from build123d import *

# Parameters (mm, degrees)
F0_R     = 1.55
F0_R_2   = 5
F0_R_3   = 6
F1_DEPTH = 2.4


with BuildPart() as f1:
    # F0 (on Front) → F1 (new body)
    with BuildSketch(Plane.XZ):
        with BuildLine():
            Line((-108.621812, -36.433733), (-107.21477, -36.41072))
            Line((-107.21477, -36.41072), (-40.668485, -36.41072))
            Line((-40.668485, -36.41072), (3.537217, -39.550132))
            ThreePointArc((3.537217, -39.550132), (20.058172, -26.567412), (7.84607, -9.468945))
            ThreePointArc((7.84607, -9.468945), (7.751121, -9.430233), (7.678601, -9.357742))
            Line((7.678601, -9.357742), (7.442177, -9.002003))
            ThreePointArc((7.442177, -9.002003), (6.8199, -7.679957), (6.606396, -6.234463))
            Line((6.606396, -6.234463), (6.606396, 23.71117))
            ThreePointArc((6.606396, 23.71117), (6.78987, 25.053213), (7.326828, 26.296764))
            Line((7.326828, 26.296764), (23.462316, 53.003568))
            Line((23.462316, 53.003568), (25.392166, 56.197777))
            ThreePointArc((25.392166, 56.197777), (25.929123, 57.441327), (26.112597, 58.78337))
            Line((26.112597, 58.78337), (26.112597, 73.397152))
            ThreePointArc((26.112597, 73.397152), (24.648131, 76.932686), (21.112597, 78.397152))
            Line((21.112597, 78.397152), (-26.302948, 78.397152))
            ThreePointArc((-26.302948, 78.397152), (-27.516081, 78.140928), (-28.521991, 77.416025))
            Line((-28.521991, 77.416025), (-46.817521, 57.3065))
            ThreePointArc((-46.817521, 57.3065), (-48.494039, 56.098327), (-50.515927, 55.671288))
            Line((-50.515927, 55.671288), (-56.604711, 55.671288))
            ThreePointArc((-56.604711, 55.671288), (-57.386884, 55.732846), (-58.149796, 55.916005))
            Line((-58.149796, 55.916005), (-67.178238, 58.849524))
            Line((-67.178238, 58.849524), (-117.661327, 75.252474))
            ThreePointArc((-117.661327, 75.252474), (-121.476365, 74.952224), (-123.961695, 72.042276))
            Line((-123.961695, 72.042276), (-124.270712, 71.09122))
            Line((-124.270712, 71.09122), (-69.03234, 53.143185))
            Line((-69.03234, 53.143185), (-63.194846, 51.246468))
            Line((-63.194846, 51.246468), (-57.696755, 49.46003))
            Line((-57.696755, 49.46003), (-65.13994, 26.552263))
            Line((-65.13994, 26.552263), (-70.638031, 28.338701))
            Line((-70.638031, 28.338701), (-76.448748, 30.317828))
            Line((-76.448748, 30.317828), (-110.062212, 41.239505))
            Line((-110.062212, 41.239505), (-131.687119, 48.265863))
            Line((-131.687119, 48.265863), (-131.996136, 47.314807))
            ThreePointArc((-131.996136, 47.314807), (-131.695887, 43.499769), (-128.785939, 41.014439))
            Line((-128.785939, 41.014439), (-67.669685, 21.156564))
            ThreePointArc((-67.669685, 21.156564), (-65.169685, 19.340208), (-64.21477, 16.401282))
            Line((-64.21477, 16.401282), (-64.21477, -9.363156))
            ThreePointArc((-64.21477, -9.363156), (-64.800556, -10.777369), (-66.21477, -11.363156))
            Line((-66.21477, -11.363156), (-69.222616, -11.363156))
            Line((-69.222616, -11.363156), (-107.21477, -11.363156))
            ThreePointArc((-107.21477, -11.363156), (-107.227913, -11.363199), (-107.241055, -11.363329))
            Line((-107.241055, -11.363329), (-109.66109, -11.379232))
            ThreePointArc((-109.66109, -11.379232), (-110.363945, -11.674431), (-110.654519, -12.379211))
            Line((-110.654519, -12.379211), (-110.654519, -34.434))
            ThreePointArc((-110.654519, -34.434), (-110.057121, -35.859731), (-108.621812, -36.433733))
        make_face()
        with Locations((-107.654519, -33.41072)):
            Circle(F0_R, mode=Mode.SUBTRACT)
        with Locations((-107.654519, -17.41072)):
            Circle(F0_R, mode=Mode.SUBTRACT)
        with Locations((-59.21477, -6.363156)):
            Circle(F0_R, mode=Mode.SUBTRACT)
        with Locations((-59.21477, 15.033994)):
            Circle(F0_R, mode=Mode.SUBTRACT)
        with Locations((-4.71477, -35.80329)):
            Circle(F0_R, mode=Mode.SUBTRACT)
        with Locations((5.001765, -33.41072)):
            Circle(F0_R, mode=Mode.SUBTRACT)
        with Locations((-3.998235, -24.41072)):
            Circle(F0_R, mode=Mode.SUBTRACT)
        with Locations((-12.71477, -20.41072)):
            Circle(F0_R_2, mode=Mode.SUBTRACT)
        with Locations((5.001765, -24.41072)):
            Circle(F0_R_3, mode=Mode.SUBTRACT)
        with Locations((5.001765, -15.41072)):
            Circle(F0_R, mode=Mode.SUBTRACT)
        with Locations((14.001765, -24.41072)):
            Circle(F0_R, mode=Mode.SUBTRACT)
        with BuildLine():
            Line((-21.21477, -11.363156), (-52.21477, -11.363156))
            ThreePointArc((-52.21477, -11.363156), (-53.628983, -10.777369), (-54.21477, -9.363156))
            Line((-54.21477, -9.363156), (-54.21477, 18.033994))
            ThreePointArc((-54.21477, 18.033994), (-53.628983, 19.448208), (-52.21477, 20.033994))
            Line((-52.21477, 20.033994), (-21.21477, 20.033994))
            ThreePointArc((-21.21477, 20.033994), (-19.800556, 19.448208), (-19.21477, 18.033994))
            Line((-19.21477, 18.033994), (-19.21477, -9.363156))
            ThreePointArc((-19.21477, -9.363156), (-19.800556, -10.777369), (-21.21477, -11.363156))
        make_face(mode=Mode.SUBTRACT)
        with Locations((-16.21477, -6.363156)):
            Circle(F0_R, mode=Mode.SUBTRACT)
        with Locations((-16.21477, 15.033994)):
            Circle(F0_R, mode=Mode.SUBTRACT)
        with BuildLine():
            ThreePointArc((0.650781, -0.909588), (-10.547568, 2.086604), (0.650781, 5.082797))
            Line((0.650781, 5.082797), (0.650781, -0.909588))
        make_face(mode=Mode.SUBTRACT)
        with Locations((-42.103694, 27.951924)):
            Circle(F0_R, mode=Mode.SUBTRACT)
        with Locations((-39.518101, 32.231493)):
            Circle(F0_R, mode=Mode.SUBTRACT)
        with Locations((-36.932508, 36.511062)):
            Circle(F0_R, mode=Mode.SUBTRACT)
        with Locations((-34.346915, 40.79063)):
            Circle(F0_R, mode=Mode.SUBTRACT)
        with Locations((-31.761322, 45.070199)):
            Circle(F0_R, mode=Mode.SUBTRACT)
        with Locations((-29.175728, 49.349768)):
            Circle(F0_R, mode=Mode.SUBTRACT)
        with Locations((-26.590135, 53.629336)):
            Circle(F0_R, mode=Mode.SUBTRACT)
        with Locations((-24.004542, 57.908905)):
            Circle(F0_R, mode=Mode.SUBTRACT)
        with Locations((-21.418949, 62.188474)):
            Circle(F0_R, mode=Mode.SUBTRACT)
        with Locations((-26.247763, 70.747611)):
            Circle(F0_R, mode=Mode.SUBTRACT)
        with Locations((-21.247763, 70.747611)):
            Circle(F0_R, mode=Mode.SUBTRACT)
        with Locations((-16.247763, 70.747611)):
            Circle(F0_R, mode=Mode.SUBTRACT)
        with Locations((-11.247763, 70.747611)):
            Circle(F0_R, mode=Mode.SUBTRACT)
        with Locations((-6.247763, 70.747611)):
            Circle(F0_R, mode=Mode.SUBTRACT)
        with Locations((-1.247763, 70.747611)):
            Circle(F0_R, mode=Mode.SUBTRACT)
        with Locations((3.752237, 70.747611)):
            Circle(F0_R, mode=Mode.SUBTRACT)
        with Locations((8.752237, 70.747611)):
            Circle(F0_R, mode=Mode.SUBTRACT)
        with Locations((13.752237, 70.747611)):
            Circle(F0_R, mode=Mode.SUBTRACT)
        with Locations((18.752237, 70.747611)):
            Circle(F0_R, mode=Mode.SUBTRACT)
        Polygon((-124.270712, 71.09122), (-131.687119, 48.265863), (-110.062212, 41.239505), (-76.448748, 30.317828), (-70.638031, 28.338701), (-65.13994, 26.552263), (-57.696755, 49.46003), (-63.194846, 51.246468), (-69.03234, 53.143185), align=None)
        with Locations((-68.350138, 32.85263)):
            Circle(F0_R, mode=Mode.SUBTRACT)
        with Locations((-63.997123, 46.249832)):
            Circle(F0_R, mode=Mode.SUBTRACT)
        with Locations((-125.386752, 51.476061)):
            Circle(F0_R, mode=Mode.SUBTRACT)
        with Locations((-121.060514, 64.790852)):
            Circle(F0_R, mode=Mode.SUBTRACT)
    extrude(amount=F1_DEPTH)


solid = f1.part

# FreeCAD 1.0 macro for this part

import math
import FreeCAD as App
import Part
import Sketcher

doc = App.newDocument("Part")
body = doc.addObject("PartDesign::Body", "Body")

# Sketch on XZ plane
sketch1 = body.newObject("Sketcher::SketchObject", "Sketch")
sketch1.AttachmentSupport = (doc.getObject("XZ_Plane"), [""])
sketch1.MapMode = "FlatFace"
sketch1.addGeometry([
    Part.LineSegment(App.Vector(-108.621812, -36.433733, 0), App.Vector(-107.21477, -36.41072, 0)),  # 0
    Part.LineSegment(App.Vector(-107.21477, -36.41072, 0), App.Vector(-40.668485, -36.41072, 0)),  # 1
    Part.LineSegment(App.Vector(-40.668485, -36.41072, 0), App.Vector(3.537217, -39.550132, 0)),  # 2
    Part.ArcOfCircle(Part.Circle(App.Vector(5.001765, -24.41072, 0), App.Vector(0, 0, 1), 15.210086), math.radians(-95.525455), math.radians(79.222169)),  # 3
    Part.ArcOfCircle(Part.Circle(App.Vector(7.89456, -9.214217, 0), App.Vector(0, 0, 1), 0.259303), math.radians(-146.392162), math.radians(-100.777861)),  # 4
    Part.LineSegment(App.Vector(7.678601, -9.357742, 0), App.Vector(7.442177, -9.002003, 0)),  # 5
    Part.ArcOfCircle(Part.Circle(App.Vector(11.6064, -6.234461, 0), App.Vector(0, 0, 1), 5.000004), math.radians(-179.999981), math.radians(-146.391997)),  # 6
    Part.LineSegment(App.Vector(6.606396, -6.234463, 0), App.Vector(6.606396, 23.71117, 0)),  # 7
    Part.ArcOfCircle(Part.Circle(App.Vector(11.606389, 23.711172, 0), App.Vector(0, 0, 1), 4.999993), math.radians(148.860789), math.radians(180.000021)),  # 8
    Part.LineSegment(App.Vector(7.326828, 26.296764, 0), App.Vector(23.462316, 53.003568, 0)),  # 9
    Part.LineSegment(App.Vector(23.462316, 53.003568, 0), App.Vector(25.392166, 56.197777, 0)),  # 10
    Part.ArcOfCircle(Part.Circle(App.Vector(21.1126, 58.783369, 0), App.Vector(0, 0, 1), 4.999997), math.radians(-31.139175), math.radians(0.000014)),  # 11
    Part.LineSegment(App.Vector(26.112597, 58.78337, 0), App.Vector(26.112597, 73.397152, 0)),  # 12
    Part.ArcOfCircle(Part.Circle(App.Vector(21.112597, 73.397152, 0), App.Vector(0, 0, 1), 5), math.radians(-0.000004), math.radians(90.000004)),  # 13
    Part.LineSegment(App.Vector(21.112597, 78.397152, 0), App.Vector(-26.302948, 78.397152, 0)),  # 14
    Part.ArcOfCircle(Part.Circle(App.Vector(-26.302947, 75.397149, 0), App.Vector(0, 0, 1), 3.000003), math.radians(90.000024), math.radians(137.704224)),  # 15
    Part.LineSegment(App.Vector(-28.521991, 77.416025, 0), App.Vector(-46.817521, 57.3065, 0)),  # 16
    Part.ArcOfCircle(Part.Circle(App.Vector(-50.515926, 60.671287, 0), App.Vector(0, 0, 1), 4.999999), math.radians(-90.000011), math.radians(-42.295743)),  # 17
    Part.LineSegment(App.Vector(-50.515927, 55.671288, 0), App.Vector(-56.604711, 55.671288, 0)),  # 18
    Part.ArcOfCircle(Part.Circle(App.Vector(-56.604715, 60.671273, 0), App.Vector(0, 0, 1), 4.999985), math.radians(-108.000013), math.radians(-89.999957)),  # 19
    Part.LineSegment(App.Vector(-58.149796, 55.916005, 0), App.Vector(-67.178238, 58.849524, 0)),  # 20
    Part.LineSegment(App.Vector(-67.178238, 58.849524, 0), App.Vector(-117.661327, 75.252474, 0)),  # 21
    Part.ArcOfCircle(Part.Circle(App.Vector(-119.206412, 70.497191, 0), App.Vector(0, 0, 1), 5), math.radians(71.999997), math.radians(162.000006)),  # 22
    Part.LineSegment(App.Vector(-123.961695, 72.042276, 0), App.Vector(-124.270712, 71.09122, 0)),  # 23
    Part.LineSegment(App.Vector(-124.270712, 71.09122, 0), App.Vector(-131.687119, 48.265863, 0)),  # 24
    Part.LineSegment(App.Vector(-131.687119, 48.265863, 0), App.Vector(-131.996136, 47.314807, 0)),  # 25
    Part.ArcOfCircle(Part.Circle(App.Vector(-127.240856, 45.76972, 0), App.Vector(0, 0, 1), 4.999998), math.radians(161.999975), math.radians(252.000013)),  # 26
    Part.LineSegment(App.Vector(-128.785939, 41.014439, 0), App.Vector(-67.669685, 21.156564, 0)),  # 27
    Part.ArcOfCircle(Part.Circle(App.Vector(-69.214769, 16.401282, 0), App.Vector(0, 0, 1), 4.999999), math.radians(-0.000001), math.radians(72.000007)),  # 28
    Part.LineSegment(App.Vector(-64.21477, 16.401282, 0), App.Vector(-64.21477, -9.363156, 0)),  # 29
    Part.ArcOfCircle(Part.Circle(App.Vector(-66.21477, -9.363156, 0), App.Vector(0, 0, 1), 2), math.radians(-89.999994), math.radians(-0.000006)),  # 30
    Part.LineSegment(App.Vector(-66.21477, -11.363156, 0), App.Vector(-107.21477, -11.363156, 0)),  # 31
    Part.ArcOfCircle(Part.Circle(App.Vector(-107.214846, -13.348505, 0), App.Vector(0, 0, 1), 1.985349), math.radians(89.997804), math.radians(90.756393)),  # 32
    Part.LineSegment(App.Vector(-107.241055, -11.363329, 0), App.Vector(-109.66109, -11.379232, 0)),  # 33
    Part.ArcOfCircle(Part.Circle(App.Vector(-109.654518, -12.379211, 0), App.Vector(0, 0, 1), 1.000001), math.radians(90.376544), math.radians(179.999983)),  # 34
    Part.LineSegment(App.Vector(-110.654519, -12.379211, 0), App.Vector(-110.654519, -34.434, 0)),  # 35
    Part.ArcOfCircle(Part.Circle(App.Vector(-108.654519, -34.434, 0), App.Vector(0, 0, 1), 2), math.radians(179.999988), math.radians(270.937028)),  # 36
    Part.Circle(App.Vector(-107.654519, -33.41072, 0), App.Vector(0, 0, 1), 1.55),  # 37
    Part.Circle(App.Vector(-107.654519, -17.41072, 0), App.Vector(0, 0, 1), 1.55),  # 38
    Part.Circle(App.Vector(-59.21477, -6.363156, 0), App.Vector(0, 0, 1), 1.55),  # 39
    Part.Circle(App.Vector(-59.21477, 15.033994, 0), App.Vector(0, 0, 1), 1.55),  # 40
    Part.Circle(App.Vector(-4.71477, -35.80329, 0), App.Vector(0, 0, 1), 1.55),  # 41
    Part.Circle(App.Vector(-3.998235, -24.41072, 0), App.Vector(0, 0, 1), 1.55),  # 42
    Part.Circle(App.Vector(5.001765, -33.41072, 0), App.Vector(0, 0, 1), 1.55),  # 43
    Part.Circle(App.Vector(5.001765, -24.41072, 0), App.Vector(0, 0, 1), 6),  # 44
    Part.Circle(App.Vector(14.001765, -24.41072, 0), App.Vector(0, 0, 1), 1.55),  # 45
    Part.Circle(App.Vector(-12.71477, -20.41072, 0), App.Vector(0, 0, 1), 5),  # 46
    Part.Circle(App.Vector(5.001765, -15.41072, 0), App.Vector(0, 0, 1), 1.55),  # 47
    Part.ArcOfCircle(Part.Circle(App.Vector(-21.21477, -9.363156, 0), App.Vector(0, 0, 1), 2), math.radians(-89.999994), math.radians(-0.000006)),  # 48
    Part.LineSegment(App.Vector(-21.21477, -11.363156, 0), App.Vector(-52.21477, -11.363156, 0)),  # 49
    Part.ArcOfCircle(Part.Circle(App.Vector(-52.214768, -9.363154, 0), App.Vector(0, 0, 1), 2.000002), math.radians(-179.999945), math.radians(-90.000055)),  # 50
    Part.LineSegment(App.Vector(-54.21477, -9.363156, 0), App.Vector(-54.21477, 18.033994, 0)),  # 51
    Part.ArcOfCircle(Part.Circle(App.Vector(-52.21477, 18.033994, 0), App.Vector(0, 0, 1), 2), math.radians(90.000006), math.radians(179.999994)),  # 52
    Part.LineSegment(App.Vector(-52.21477, 20.033994, 0), App.Vector(-21.21477, 20.033994, 0)),  # 53
    Part.ArcOfCircle(Part.Circle(App.Vector(-21.214769, 18.033995, 0), App.Vector(0, 0, 1), 1.999999), math.radians(-0.000043), math.radians(90.000043)),  # 54
    Part.LineSegment(App.Vector(-19.21477, 18.033994, 0), App.Vector(-19.21477, -9.363156, 0)),  # 55
    Part.Circle(App.Vector(-16.21477, -6.363156, 0), App.Vector(0, 0, 1), 1.55),  # 56
    Part.LineSegment(App.Vector(0.650781, 5.082797, 0), App.Vector(0.650781, -0.909588, 0)),  # 57
    Part.ArcOfCircle(Part.Circle(App.Vector(-4.547568, 2.086604, 0), App.Vector(0, 0, 1), 6), math.radians(29.958025), math.radians(330.041975)),  # 58
    Part.Circle(App.Vector(-16.21477, 15.033994, 0), App.Vector(0, 0, 1), 1.55),  # 59
    Part.Circle(App.Vector(-68.350138, 32.85263, 0), App.Vector(0, 0, 1), 1.55),  # 60
    Part.Circle(App.Vector(-125.386752, 51.476061, 0), App.Vector(0, 0, 1), 1.55),  # 61
    Part.Circle(App.Vector(-121.060514, 64.790852, 0), App.Vector(0, 0, 1), 1.55),  # 62
    Part.Circle(App.Vector(-63.997123, 46.249832, 0), App.Vector(0, 0, 1), 1.55),  # 63
    Part.Circle(App.Vector(-42.103694, 27.951924, 0), App.Vector(0, 0, 1), 1.55),  # 64
    Part.Circle(App.Vector(-39.518101, 32.231493, 0), App.Vector(0, 0, 1), 1.55),  # 65
    Part.Circle(App.Vector(-36.932508, 36.511062, 0), App.Vector(0, 0, 1), 1.55),  # 66
    Part.Circle(App.Vector(-34.346915, 40.79063, 0), App.Vector(0, 0, 1), 1.55),  # 67
    Part.Circle(App.Vector(-31.761322, 45.070199, 0), App.Vector(0, 0, 1), 1.55),  # 68
    Part.Circle(App.Vector(-29.175728, 49.349768, 0), App.Vector(0, 0, 1), 1.55),  # 69
    Part.Circle(App.Vector(-26.590135, 53.629336, 0), App.Vector(0, 0, 1), 1.55),  # 70
    Part.Circle(App.Vector(-24.004542, 57.908905, 0), App.Vector(0, 0, 1), 1.55),  # 71
    Part.Circle(App.Vector(-21.418949, 62.188474, 0), App.Vector(0, 0, 1), 1.55),  # 72
    Part.Circle(App.Vector(-26.247763, 70.747611, 0), App.Vector(0, 0, 1), 1.55),  # 73
    Part.Circle(App.Vector(-21.247763, 70.747611, 0), App.Vector(0, 0, 1), 1.55),  # 74
    Part.Circle(App.Vector(-16.247763, 70.747611, 0), App.Vector(0, 0, 1), 1.55),  # 75
    Part.Circle(App.Vector(-11.247763, 70.747611, 0), App.Vector(0, 0, 1), 1.55),  # 76
    Part.Circle(App.Vector(-6.247763, 70.747611, 0), App.Vector(0, 0, 1), 1.55),  # 77
    Part.Circle(App.Vector(-1.247763, 70.747611, 0), App.Vector(0, 0, 1), 1.55),  # 78
    Part.Circle(App.Vector(3.752237, 70.747611, 0), App.Vector(0, 0, 1), 1.55),  # 79
    Part.Circle(App.Vector(8.752237, 70.747611, 0), App.Vector(0, 0, 1), 1.55),  # 80
    Part.Circle(App.Vector(13.752237, 70.747611, 0), App.Vector(0, 0, 1), 1.55),  # 81
    Part.Circle(App.Vector(18.752237, 70.747611, 0), App.Vector(0, 0, 1), 1.55),  # 82
], False)
sketch1.addConstraint([
    Sketcher.Constraint("Coincident", 0, 2, 1, 1),
    Sketcher.Constraint("Coincident", 1, 2, 2, 1),
    Sketcher.Constraint("Coincident", 2, 2, 3, 1),
    Sketcher.Constraint("Coincident", 3, 2, 4, 2),
    Sketcher.Constraint("Coincident", 4, 1, 5, 1),
    Sketcher.Constraint("Coincident", 5, 2, 6, 2),
    Sketcher.Constraint("Coincident", 6, 1, 7, 1),
    Sketcher.Constraint("Coincident", 7, 2, 8, 2),
    Sketcher.Constraint("Coincident", 8, 1, 9, 1),
    Sketcher.Constraint("Coincident", 9, 2, 10, 1),
    Sketcher.Constraint("Coincident", 10, 2, 11, 1),
    Sketcher.Constraint("Coincident", 11, 2, 12, 1),
    Sketcher.Constraint("Coincident", 12, 2, 13, 1),
    Sketcher.Constraint("Coincident", 13, 2, 14, 1),
    Sketcher.Constraint("Coincident", 14, 2, 15, 1),
    Sketcher.Constraint("Coincident", 15, 2, 16, 1),
    Sketcher.Constraint("Coincident", 16, 2, 17, 2),
    Sketcher.Constraint("Coincident", 17, 1, 18, 1),
    Sketcher.Constraint("Coincident", 18, 2, 19, 2),
    Sketcher.Constraint("Coincident", 19, 1, 20, 1),
    Sketcher.Constraint("Coincident", 20, 2, 21, 1),
    Sketcher.Constraint("Coincident", 21, 2, 22, 1),
    Sketcher.Constraint("Coincident", 22, 2, 23, 1),
    Sketcher.Constraint("Coincident", 23, 2, 24, 1),
    Sketcher.Constraint("Coincident", 24, 2, 25, 1),
    Sketcher.Constraint("Coincident", 25, 2, 26, 1),
    Sketcher.Constraint("Coincident", 26, 2, 27, 1),
    Sketcher.Constraint("Coincident", 27, 2, 28, 2),
    Sketcher.Constraint("Coincident", 28, 1, 29, 1),
    Sketcher.Constraint("Coincident", 29, 2, 30, 2),
    Sketcher.Constraint("Coincident", 30, 1, 31, 1),
    Sketcher.Constraint("Coincident", 31, 2, 32, 1),
    Sketcher.Constraint("Coincident", 32, 2, 33, 1),
    Sketcher.Constraint("Coincident", 33, 2, 34, 1),
    Sketcher.Constraint("Coincident", 34, 2, 35, 1),
    Sketcher.Constraint("Coincident", 35, 2, 36, 1),
    Sketcher.Constraint("Coincident", 36, 2, 0, 1),
    Sketcher.Constraint("Coincident", 48, 1, 49, 1),
    Sketcher.Constraint("Coincident", 49, 2, 50, 2),
    Sketcher.Constraint("Coincident", 50, 1, 51, 1),
    Sketcher.Constraint("Coincident", 51, 2, 52, 2),
    Sketcher.Constraint("Coincident", 52, 1, 53, 1),
    Sketcher.Constraint("Coincident", 53, 2, 54, 2),
    Sketcher.Constraint("Coincident", 54, 1, 55, 1),
    Sketcher.Constraint("Coincident", 55, 2, 48, 2),
    Sketcher.Constraint("Coincident", 57, 1, 58, 1),
    Sketcher.Constraint("Coincident", 58, 2, 57, 2),
    Sketcher.Constraint("Horizontal", 1),
    Sketcher.Constraint("Vertical", 7),
    Sketcher.Constraint("Vertical", 12),
    Sketcher.Constraint("Horizontal", 14),
    Sketcher.Constraint("Horizontal", 18),
    Sketcher.Constraint("Vertical", 29),
    Sketcher.Constraint("Horizontal", 31),
    Sketcher.Constraint("Vertical", 35),
    Sketcher.Constraint("Horizontal", 49),
    Sketcher.Constraint("Vertical", 51),
    Sketcher.Constraint("Horizontal", 53),
    Sketcher.Constraint("Vertical", 55),
    Sketcher.Constraint("Vertical", 57),
    Sketcher.Constraint("Coincident", 44, 3, 3, 3),
    Sketcher.Constraint("Diameter", 44, 12.0),
    Sketcher.Constraint("Diameter", 46, 10.0),
    Sketcher.Constraint("Radius", 13, 5.0),
    Sketcher.Constraint("Radius", 17, 4.999999),
    Sketcher.Constraint("Radius", 22, 5.0),
    Sketcher.Constraint("Radius", 26, 4.999998),
    Sketcher.Constraint("Radius", 28, 4.999999),
    Sketcher.Constraint("Radius", 30, 2.0),
    Sketcher.Constraint("Radius", 34, 1.000001),
    Sketcher.Constraint("Radius", 36, 2.0),
    Sketcher.Constraint("Radius", 48, 2.0),
    Sketcher.Constraint("Radius", 50, 2.000002),
    Sketcher.Constraint("Radius", 52, 2.0),
    Sketcher.Constraint("Radius", 54, 1.999999),
    Sketcher.Constraint("Radius", 58, 6.0),
    Sketcher.Constraint("Diameter", 37, 3.1),
    Sketcher.Constraint("Diameter", 38, 3.1),
    Sketcher.Constraint("Diameter", 39, 3.1),
    Sketcher.Constraint("Diameter", 40, 3.1),
    Sketcher.Constraint("Diameter", 41, 3.1),
    Sketcher.Constraint("Diameter", 42, 3.1),
    Sketcher.Constraint("Diameter", 43, 3.1),
    Sketcher.Constraint("Diameter", 45, 3.1),
    Sketcher.Constraint("Diameter", 47, 3.1),
    Sketcher.Constraint("Diameter", 56, 3.1),
    Sketcher.Constraint("Diameter", 59, 3.1),
    Sketcher.Constraint("Diameter", 60, 3.1),
    Sketcher.Constraint("Diameter", 61, 3.1),
    Sketcher.Constraint("Diameter", 62, 3.1),
    Sketcher.Constraint("Diameter", 63, 3.1),
    Sketcher.Constraint("Diameter", 64, 3.1),
    Sketcher.Constraint("Diameter", 65, 3.1),
    Sketcher.Constraint("Diameter", 66, 3.1),
    Sketcher.Constraint("Diameter", 67, 3.1),
    Sketcher.Constraint("Diameter", 68, 3.1),
    Sketcher.Constraint("Diameter", 69, 3.1),
    Sketcher.Constraint("Diameter", 70, 3.1),
    Sketcher.Constraint("Diameter", 71, 3.1),
    Sketcher.Constraint("Diameter", 72, 3.1),
    Sketcher.Constraint("Diameter", 73, 3.1),
    Sketcher.Constraint("Diameter", 74, 3.1),
    Sketcher.Constraint("Diameter", 75, 3.1),
    Sketcher.Constraint("Diameter", 76, 3.1),
    Sketcher.Constraint("Diameter", 77, 3.1),
    Sketcher.Constraint("Diameter", 78, 3.1),
    Sketcher.Constraint("Diameter", 79, 3.1),
    Sketcher.Constraint("Diameter", 80, 3.1),
    Sketcher.Constraint("Diameter", 81, 3.1),
    Sketcher.Constraint("Diameter", 82, 3.1),
    Sketcher.Constraint("DistanceX", 31, 2, 31, 1, 41.0),
    Sketcher.Constraint("DistanceX", 49, 2, 49, 1, 31.0),
    Sketcher.Constraint("DistanceX", 53, 1, 53, 2, 31.0),
    Sketcher.Constraint("Distance", 23, 1.0),
    Sketcher.Constraint("Distance", 24, 24.0),
    Sketcher.Constraint("Distance", 25, 1.0),
    Sketcher.Constraint("Radius", 32, 1.985349),
    Sketcher.Constraint("DistanceY", 36, 3, -1, 1, 34.434),
    Sketcher.Constraint("DistanceY", 35, 2, -1, 1, 34.434),
    Sketcher.Constraint("Radius", 3, 15.210086),
    Sketcher.Constraint("Radius", 4, 0.259303),
    Sketcher.Constraint("Radius", 6, 5.000004),
    Sketcher.Constraint("Radius", 8, 4.999993),
    Sketcher.Constraint("Radius", 11, 4.999997),
    Sketcher.Constraint("Radius", 15, 3.000003),
    Sketcher.Constraint("Radius", 19, 4.999985),
    Sketcher.Constraint("DistanceY", 35, 2, 35, 1, 22.054789),
    Sketcher.Constraint("DistanceY", 51, 1, 51, 2, 27.39715),
    Sketcher.Constraint("DistanceY", 55, 2, 55, 1, 27.39715),
    Sketcher.Constraint("DistanceX", -1, 1, 6, 3, 11.6064),
    Sketcher.Constraint("DistanceX", -1, 1, 11, 3, 21.1126),
    Sketcher.Constraint("DistanceX", 65, 3, -1, 1, 39.518101),
    Sketcher.Constraint("DistanceY", -1, 1, 68, 3, 45.070199),
    Sketcher.Constraint("DistanceX", -1, 1, 4, 1, 7.678601),
    Sketcher.Constraint("DistanceY", -1, 1, 16, 2, 57.3065),
    Sketcher.Constraint("Distance", 0, 1.40723),
    Sketcher.Constraint("Distance", 2, 44.31704),
    Sketcher.Constraint("Distance", 9, 31.202682),
    Sketcher.Constraint("Distance", 10, 3.731929),
    Sketcher.Constraint("Distance", 16, 27.186751),
    Sketcher.Constraint("Distance", 21, 53.081061),
    Sketcher.Constraint("DistanceX", 1, 1, 1, 2, 66.546285),
    Sketcher.Constraint("DistanceX", 14, 2, 14, 1, 47.415545),
    Sketcher.Constraint("DistanceX", 18, 2, 18, 1, 6.088784),
    Sketcher.Constraint("DistanceY", 7, 1, 7, 2, 29.945633),
    Sketcher.Constraint("DistanceY", 12, 1, 12, 2, 14.613782),
    Sketcher.Constraint("DistanceY", 29, 2, 29, 1, 25.764438),
    Sketcher.Constraint("DistanceY", 57, 2, 57, 1, 5.992385),
    Sketcher.Constraint("DistanceY", 3, 3, -1, 1, 24.41072),
    Sketcher.Constraint("DistanceX", -1, 1, 4, 3, 7.89456),
    Sketcher.Constraint("DistanceY", 6, 3, -1, 1, 6.234461),
    Sketcher.Constraint("DistanceY", -1, 1, 8, 3, 23.711172),
    Sketcher.Constraint("DistanceY", -1, 1, 11, 3, 58.783369),
    Sketcher.Constraint("DistanceY", -1, 1, 15, 3, 75.397149),
    Sketcher.Constraint("DistanceY", -1, 1, 22, 3, 70.497191),
    Sketcher.Constraint("DistanceY", -1, 1, 26, 3, 45.76972),
    Sketcher.Constraint("DistanceX", 28, 3, -1, 1, 69.214769),
    Sketcher.Constraint("DistanceX", 34, 3, -1, 1, 109.654518),
    Sketcher.Constraint("DistanceY", 34, 3, -1, 1, 12.379211),
    Sketcher.Constraint("DistanceX", 37, 3, -1, 1, 107.654519),
    Sketcher.Constraint("DistanceY", 37, 3, -1, 1, 33.41072),
    Sketcher.Constraint("DistanceX", 38, 3, -1, 1, 107.654519),
    Sketcher.Constraint("DistanceY", 38, 3, -1, 1, 17.41072),
    Sketcher.Constraint("DistanceX", 39, 3, -1, 1, 59.21477),
    Sketcher.Constraint("DistanceX", 40, 3, -1, 1, 59.21477),
    Sketcher.Constraint("DistanceX", 41, 3, -1, 1, 4.71477),
    Sketcher.Constraint("DistanceY", 41, 3, -1, 1, 35.80329),
    Sketcher.Constraint("DistanceY", 42, 3, -1, 1, 24.41072),
    Sketcher.Constraint("DistanceY", 43, 3, -1, 1, 33.41072),
    Sketcher.Constraint("DistanceY", 45, 3, -1, 1, 24.41072),
    Sketcher.Constraint("DistanceX", 46, 3, -1, 1, 12.71477),
    Sketcher.Constraint("DistanceY", 46, 3, -1, 1, 20.41072),
    Sketcher.Constraint("DistanceY", 47, 3, -1, 1, 15.41072),
    Sketcher.Constraint("DistanceX", 48, 3, -1, 1, 21.21477),
    Sketcher.Constraint("DistanceX", 50, 3, -1, 1, 52.214768),
    Sketcher.Constraint("DistanceX", 56, 3, -1, 1, 16.21477),
    Sketcher.Constraint("DistanceX", 59, 3, -1, 1, 16.21477),
    Sketcher.Constraint("DistanceX", 60, 3, -1, 1, 68.350138),
    Sketcher.Constraint("DistanceY", -1, 1, 60, 3, 32.85263),
    Sketcher.Constraint("DistanceX", 61, 3, -1, 1, 125.386752),
    Sketcher.Constraint("DistanceY", -1, 1, 61, 3, 51.476061),
    Sketcher.Constraint("DistanceY", -1, 1, 62, 3, 64.790852),
    Sketcher.Constraint("DistanceY", -1, 1, 63, 3, 46.249832),
    Sketcher.Constraint("DistanceY", -1, 1, 67, 3, 40.79063),
    Sketcher.Constraint("DistanceX", 68, 3, -1, 1, 31.761322),
    Sketcher.Constraint("DistanceX", 72, 3, -1, 1, 21.418949),
    Sketcher.Constraint("DistanceY", -1, 1, 73, 3, 70.747611),
    Sketcher.Constraint("DistanceY", -1, 1, 74, 3, 70.747611),
    Sketcher.Constraint("DistanceY", -1, 1, 75, 3, 70.747611),
    Sketcher.Constraint("DistanceY", -1, 1, 76, 3, 70.747611),
    Sketcher.Constraint("DistanceY", -1, 1, 77, 3, 70.747611),
    Sketcher.Constraint("DistanceY", -1, 1, 78, 3, 70.747611),
    Sketcher.Constraint("DistanceY", -1, 1, 79, 3, 70.747611),
    Sketcher.Constraint("DistanceY", -1, 1, 80, 3, 70.747611),
    Sketcher.Constraint("DistanceY", -1, 1, 81, 3, 70.747611),
    Sketcher.Constraint("DistanceY", -1, 1, 82, 3, 70.747611),
    Sketcher.Constraint("DistanceX", 0, 2, -1, 1, 107.21477),
    Sketcher.Constraint("DistanceY", 0, 2, -1, 1, 36.41072),
    Sketcher.Constraint("DistanceY", 2, 2, -1, 1, 39.550132),
    Sketcher.Constraint("DistanceX", -1, 1, 3, 2, 7.84607),
    Sketcher.Constraint("DistanceY", -1, 1, 7, 2, 23.71117),
    Sketcher.Constraint("DistanceX", -1, 1, 8, 1, 7.326828),
    Sketcher.Constraint("DistanceY", -1, 1, 11, 2, 58.78337),
    Sketcher.Constraint("DistanceX", 14, 2, -1, 1, 26.302948),
    Sketcher.Constraint("DistanceX", 15, 2, -1, 1, 28.521991),
    Sketcher.Constraint("DistanceX", 16, 2, -1, 1, 46.817521),
    Sketcher.Constraint("DistanceY", -1, 1, 17, 1, 55.671288),
    Sketcher.Constraint("DistanceX", 18, 2, -1, 1, 56.604711),
    Sketcher.Constraint("DistanceY", -1, 1, 23, 2, 71.09122),
    Sketcher.Constraint("DistanceX", 24, 2, -1, 1, 131.687119),
    Sketcher.Constraint("DistanceX", 26, 2, -1, 1, 128.785939),
    Sketcher.Constraint("DistanceY", -1, 1, 26, 2, 41.014439),
    Sketcher.Constraint("DistanceY", -1, 1, 28, 1, 16.401282),
    Sketcher.Constraint("DistanceX", 30, 1, -1, 1, 66.21477),
    Sketcher.Constraint("DistanceY", 32, 2, -1, 1, 11.363329),
    Sketcher.Constraint("DistanceX", 33, 2, -1, 1, 109.66109),
    Sketcher.Constraint("DistanceX", 48, 1, -1, 1, 21.21477),
    Sketcher.Constraint("DistanceX", 52, 1, -1, 1, 52.21477),
    Sketcher.Constraint("DistanceX", -1, 1, 57, 1, 0.650781),
    Sketcher.Constraint("Distance", 5, 0.427138),
    Sketcher.Constraint("Distance", 20, 9.493066),
    Sketcher.Constraint("Distance", 27, 64.261432),
    Sketcher.Constraint("Distance", 33, 2.420087),
    Sketcher.Constraint("DistanceX", 19, 3, -1, 1, 56.604715),
    Sketcher.Constraint("DistanceX", 22, 3, -1, 1, 119.206412),
    Sketcher.Constraint("DistanceY", -1, 1, 28, 3, 16.401282),
    Sketcher.Constraint("DistanceY", 30, 3, -1, 1, 9.363156),
    Sketcher.Constraint("DistanceY", 39, 3, -1, 1, 6.363156),
    Sketcher.Constraint("DistanceY", -1, 1, 40, 3, 15.033994),
    Sketcher.Constraint("DistanceX", 42, 3, -1, 1, 3.998235),
    Sketcher.Constraint("DistanceX", -1, 1, 43, 3, 5.001765),
    Sketcher.Constraint("DistanceX", -1, 1, 45, 3, 14.001765),
    Sketcher.Constraint("DistanceX", -1, 1, 47, 3, 5.001765),
    Sketcher.Constraint("DistanceY", 48, 3, -1, 1, 9.363156),
    Sketcher.Constraint("DistanceY", -1, 1, 52, 3, 18.033994),
    Sketcher.Constraint("DistanceY", 56, 3, -1, 1, 6.363156),
    Sketcher.Constraint("DistanceY", -1, 1, 58, 3, 2.086604),
    Sketcher.Constraint("DistanceY", -1, 1, 59, 3, 15.033994),
    Sketcher.Constraint("DistanceX", 62, 3, -1, 1, 121.060514),
    Sketcher.Constraint("DistanceX", 63, 3, -1, 1, 63.997123),
    Sketcher.Constraint("DistanceX", 64, 3, -1, 1, 42.103694),
    Sketcher.Constraint("DistanceY", -1, 1, 64, 3, 27.951924),
    Sketcher.Constraint("DistanceY", -1, 1, 65, 3, 32.231493),
    Sketcher.Constraint("DistanceX", 66, 3, -1, 1, 36.932508),
    Sketcher.Constraint("DistanceY", -1, 1, 66, 3, 36.511062),
    Sketcher.Constraint("DistanceX", 67, 3, -1, 1, 34.346915),
    Sketcher.Constraint("DistanceX", 69, 3, -1, 1, 29.175728),
    Sketcher.Constraint("DistanceY", -1, 1, 69, 3, 49.349768),
    Sketcher.Constraint("DistanceX", 70, 3, -1, 1, 26.590135),
    Sketcher.Constraint("DistanceY", -1, 1, 70, 3, 53.629336),
    Sketcher.Constraint("DistanceX", 71, 3, -1, 1, 24.004542),
    Sketcher.Constraint("DistanceY", -1, 1, 71, 3, 57.908905),
    Sketcher.Constraint("DistanceY", -1, 1, 72, 3, 62.188474),
    Sketcher.Constraint("DistanceX", 73, 3, -1, 1, 26.247763),
    Sketcher.Constraint("DistanceX", 74, 3, -1, 1, 21.247763),
    Sketcher.Constraint("DistanceX", 75, 3, -1, 1, 16.247763),
    Sketcher.Constraint("DistanceX", 76, 3, -1, 1, 11.247763),
    Sketcher.Constraint("DistanceX", 77, 3, -1, 1, 6.247763),
    Sketcher.Constraint("DistanceX", 78, 3, -1, 1, 1.247763),
    Sketcher.Constraint("DistanceX", -1, 1, 79, 3, 3.752237),
    Sketcher.Constraint("DistanceX", -1, 1, 80, 3, 8.752237),
    Sketcher.Constraint("DistanceX", -1, 1, 81, 3, 13.752237),
    Sketcher.Constraint("DistanceX", -1, 1, 82, 3, 18.752237),
    Sketcher.Constraint("DistanceX", -1, 1, 9, 2, 23.462316),
    Sketcher.Constraint("DistanceX", 19, 1, -1, 1, 58.149796),
    Sketcher.Constraint("DistanceX", 20, 2, -1, 1, 67.178238),
    Sketcher.Constraint("DistanceX", 22, 2, -1, 1, 123.961695),
    Sketcher.Constraint("DistanceY", 50, 1, -1, 1, 9.363156),
    Sketcher.Constraint("DistanceY", -1, 1, 54, 1, 18.033994),
])
pad1 = body.newObject("PartDesign::Pad", "Pad")
pad1.Profile = sketch1
pad1.Length = 2.4

doc.recompute()
